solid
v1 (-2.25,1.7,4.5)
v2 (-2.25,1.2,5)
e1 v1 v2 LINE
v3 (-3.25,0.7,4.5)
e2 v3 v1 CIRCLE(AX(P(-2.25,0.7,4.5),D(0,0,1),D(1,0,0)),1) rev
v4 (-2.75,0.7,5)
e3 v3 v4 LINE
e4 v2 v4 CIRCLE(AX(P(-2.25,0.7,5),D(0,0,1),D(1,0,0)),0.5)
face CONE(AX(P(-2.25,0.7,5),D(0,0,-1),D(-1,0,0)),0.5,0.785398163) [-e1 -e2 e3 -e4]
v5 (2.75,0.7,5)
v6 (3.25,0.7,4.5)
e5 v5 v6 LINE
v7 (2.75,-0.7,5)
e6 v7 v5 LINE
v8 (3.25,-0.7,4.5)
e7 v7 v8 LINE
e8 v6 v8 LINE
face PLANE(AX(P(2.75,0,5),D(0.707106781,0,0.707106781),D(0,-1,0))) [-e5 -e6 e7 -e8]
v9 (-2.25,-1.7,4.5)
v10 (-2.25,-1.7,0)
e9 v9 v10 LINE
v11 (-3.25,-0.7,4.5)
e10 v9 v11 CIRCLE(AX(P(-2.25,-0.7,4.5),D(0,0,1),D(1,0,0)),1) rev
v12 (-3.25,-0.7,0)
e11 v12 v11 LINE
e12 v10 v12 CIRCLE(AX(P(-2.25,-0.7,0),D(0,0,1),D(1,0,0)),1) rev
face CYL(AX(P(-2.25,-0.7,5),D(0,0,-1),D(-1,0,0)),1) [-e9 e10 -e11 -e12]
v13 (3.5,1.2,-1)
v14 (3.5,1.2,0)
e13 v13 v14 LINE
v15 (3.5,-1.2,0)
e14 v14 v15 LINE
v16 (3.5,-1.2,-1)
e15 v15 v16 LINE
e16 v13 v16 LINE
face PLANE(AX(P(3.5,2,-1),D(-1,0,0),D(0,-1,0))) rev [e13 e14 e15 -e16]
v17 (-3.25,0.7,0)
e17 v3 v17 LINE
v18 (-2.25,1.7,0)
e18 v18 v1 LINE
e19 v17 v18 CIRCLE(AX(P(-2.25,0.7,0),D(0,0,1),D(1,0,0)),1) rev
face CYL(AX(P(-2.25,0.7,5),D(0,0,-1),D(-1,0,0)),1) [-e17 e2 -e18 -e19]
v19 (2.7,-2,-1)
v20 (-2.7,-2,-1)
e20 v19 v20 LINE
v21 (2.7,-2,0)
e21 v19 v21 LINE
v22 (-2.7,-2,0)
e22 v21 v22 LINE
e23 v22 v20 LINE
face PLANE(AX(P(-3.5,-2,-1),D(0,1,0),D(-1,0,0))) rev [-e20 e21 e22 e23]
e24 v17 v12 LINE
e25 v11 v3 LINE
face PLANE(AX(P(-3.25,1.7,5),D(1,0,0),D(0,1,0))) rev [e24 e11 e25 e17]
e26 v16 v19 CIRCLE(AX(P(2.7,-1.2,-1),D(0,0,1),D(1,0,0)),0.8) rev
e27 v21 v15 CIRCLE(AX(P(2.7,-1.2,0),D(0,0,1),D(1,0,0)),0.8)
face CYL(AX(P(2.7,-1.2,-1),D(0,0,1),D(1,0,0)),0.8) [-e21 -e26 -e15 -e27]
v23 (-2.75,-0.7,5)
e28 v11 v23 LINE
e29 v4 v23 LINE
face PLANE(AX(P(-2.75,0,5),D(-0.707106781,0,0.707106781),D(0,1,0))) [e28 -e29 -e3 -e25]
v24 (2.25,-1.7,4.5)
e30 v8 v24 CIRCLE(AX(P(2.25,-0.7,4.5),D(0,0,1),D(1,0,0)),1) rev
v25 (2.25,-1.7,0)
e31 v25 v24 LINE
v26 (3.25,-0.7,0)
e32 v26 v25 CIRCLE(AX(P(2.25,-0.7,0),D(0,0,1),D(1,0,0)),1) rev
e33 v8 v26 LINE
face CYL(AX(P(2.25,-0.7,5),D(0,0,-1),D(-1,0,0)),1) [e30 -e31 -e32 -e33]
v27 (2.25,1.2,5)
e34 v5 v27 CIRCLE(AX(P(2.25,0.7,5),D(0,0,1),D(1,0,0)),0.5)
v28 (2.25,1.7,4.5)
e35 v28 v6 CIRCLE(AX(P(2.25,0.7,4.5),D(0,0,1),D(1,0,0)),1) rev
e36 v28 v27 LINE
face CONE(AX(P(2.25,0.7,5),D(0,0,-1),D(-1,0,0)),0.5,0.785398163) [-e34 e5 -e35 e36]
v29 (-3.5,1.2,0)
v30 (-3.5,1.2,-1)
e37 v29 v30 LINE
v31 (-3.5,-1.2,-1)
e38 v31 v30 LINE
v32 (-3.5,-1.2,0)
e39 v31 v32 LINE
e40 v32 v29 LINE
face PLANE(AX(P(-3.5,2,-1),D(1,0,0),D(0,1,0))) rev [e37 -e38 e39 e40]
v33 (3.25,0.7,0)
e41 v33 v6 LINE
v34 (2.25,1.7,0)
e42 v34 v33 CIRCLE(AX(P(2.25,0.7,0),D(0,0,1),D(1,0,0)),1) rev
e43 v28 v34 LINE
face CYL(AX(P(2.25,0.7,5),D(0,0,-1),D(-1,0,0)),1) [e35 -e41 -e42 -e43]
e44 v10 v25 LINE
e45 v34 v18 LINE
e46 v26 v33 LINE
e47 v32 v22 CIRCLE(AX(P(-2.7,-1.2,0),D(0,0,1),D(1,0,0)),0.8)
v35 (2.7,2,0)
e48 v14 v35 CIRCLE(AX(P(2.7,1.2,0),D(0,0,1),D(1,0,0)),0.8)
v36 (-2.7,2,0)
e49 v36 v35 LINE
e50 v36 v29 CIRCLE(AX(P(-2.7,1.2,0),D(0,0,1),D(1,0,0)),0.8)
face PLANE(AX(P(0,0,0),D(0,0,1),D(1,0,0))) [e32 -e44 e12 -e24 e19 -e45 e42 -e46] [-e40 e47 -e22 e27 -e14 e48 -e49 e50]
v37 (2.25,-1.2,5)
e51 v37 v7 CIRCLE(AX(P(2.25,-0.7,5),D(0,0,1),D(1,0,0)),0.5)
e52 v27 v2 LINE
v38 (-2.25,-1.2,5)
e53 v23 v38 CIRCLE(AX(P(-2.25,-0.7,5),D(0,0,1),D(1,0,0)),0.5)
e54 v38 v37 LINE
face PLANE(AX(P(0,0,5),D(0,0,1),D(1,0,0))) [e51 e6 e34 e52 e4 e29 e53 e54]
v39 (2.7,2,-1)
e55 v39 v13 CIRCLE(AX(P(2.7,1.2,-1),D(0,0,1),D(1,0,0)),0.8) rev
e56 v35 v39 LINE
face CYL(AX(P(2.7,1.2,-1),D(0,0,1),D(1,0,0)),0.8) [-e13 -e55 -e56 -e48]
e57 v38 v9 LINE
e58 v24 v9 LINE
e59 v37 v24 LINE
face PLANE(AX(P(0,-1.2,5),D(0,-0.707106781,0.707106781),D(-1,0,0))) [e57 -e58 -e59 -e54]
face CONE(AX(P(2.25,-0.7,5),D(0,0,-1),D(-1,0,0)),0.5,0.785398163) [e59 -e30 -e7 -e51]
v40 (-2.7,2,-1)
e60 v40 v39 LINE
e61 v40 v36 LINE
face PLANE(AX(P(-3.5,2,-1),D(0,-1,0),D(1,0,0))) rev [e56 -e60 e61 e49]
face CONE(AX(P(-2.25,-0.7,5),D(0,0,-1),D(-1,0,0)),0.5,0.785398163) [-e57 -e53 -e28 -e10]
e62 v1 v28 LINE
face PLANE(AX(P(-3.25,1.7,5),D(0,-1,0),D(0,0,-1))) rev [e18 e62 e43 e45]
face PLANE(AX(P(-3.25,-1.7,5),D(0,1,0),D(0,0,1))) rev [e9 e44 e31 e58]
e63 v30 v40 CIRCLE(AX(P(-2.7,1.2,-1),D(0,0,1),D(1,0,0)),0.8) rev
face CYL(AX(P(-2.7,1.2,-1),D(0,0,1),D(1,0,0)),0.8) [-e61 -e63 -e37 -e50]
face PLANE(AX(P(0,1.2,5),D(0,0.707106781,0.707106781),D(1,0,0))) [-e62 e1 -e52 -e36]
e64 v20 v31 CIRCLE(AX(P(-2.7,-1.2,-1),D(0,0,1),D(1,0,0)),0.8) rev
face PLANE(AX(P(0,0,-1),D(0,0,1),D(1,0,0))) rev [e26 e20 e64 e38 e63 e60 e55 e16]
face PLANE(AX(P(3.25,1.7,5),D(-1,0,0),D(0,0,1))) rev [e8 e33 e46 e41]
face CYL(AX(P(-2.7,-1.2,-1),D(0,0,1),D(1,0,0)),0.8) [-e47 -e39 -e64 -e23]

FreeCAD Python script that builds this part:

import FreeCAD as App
import Part
import Sketcher

V = App.Vector


def edges_at(feature, points):
    """Names of the edges that pass closest to the given points."""
    edges = feature.Shape.Edges
    near = lambda p: min(range(len(edges)), key=lambda i: edges[i].distToShape(Part.Vertex(*p))[0])
    return sorted({f"Edge{near(p) + 1}" for p in points})

doc = App.newDocument("Part")
body = doc.addObject("PartDesign::Body", "Body")

# Sketch on XY plane
sketch1 = body.newObject("Sketcher::SketchObject", "Sketch")
sketch1.AttachmentSupport = (doc.getObject("XY_Plane"), [""])
sketch1.MapMode = "FlatFace"
sketch1.addGeometry([
    Part.LineSegment(V(-3.25, 1.7, 0), V(-3.25, -1.7, 0)),
    Part.LineSegment(V(-3.25, -1.7, 0), V(3.25, -1.7, 0)),
    Part.LineSegment(V(3.25, -1.7, 0), V(3.25, 1.7, 0)),
    Part.LineSegment(V(3.25, 1.7, 0), V(-3.25, 1.7, 0)),
], False)
sketch1.addConstraint([
    Sketcher.Constraint("Coincident", 0, 2, 1, 1),
    Sketcher.Constraint("Coincident", 1, 2, 2, 1),
    Sketcher.Constraint("Coincident", 2, 2, 3, 1),
    Sketcher.Constraint("Coincident", 3, 2, 0, 1),
    Sketcher.Constraint("Vertical", 0),
    Sketcher.Constraint("Horizontal", 1),
    Sketcher.Constraint("Vertical", 2),
    Sketcher.Constraint("Horizontal", 3),
    Sketcher.Constraint("Symmetric", 0, 2, 2, 2, -1, 1),
    Sketcher.Constraint("DistanceX", 1, 1, 1, 2, 6.5),
    Sketcher.Constraint("DistanceY", 0, 2, 0, 1, 3.4),
])
pad1 = body.newObject("PartDesign::Pad", "Pad")
pad1.Profile = sketch1
pad1.Length = 5
doc.recompute()

fillet = body.newObject("PartDesign::Fillet", "Fillet")
fillet.Base = (pad1, edges_at(pad1, [
    (3.25, -1.7, 2.5),
    (-3.25, -1.7, 2.5),
    (-3.25, 1.7, 2.5),
    (3.25, 1.7, 2.5),
]))
fillet.Radius = 1
doc.recompute()

chamfer = body.newObject("PartDesign::Chamfer", "Chamfer")
chamfer.Base = (fillet, edges_at(fillet, [
    (-3.25, 0, 5),
    (0, 1.7, 5),
    (3.25, 0, 5),
    (0, -1.7, 5),
    (-2.957, -1.407, 5),
    (2.957, -1.407, 5),
    (2.957, 1.407, 5),
    (-2.957, 1.407, 5),
]))
chamfer.Size = 0.5

# Sketch on XY plane
sketch2 = body.newObject("Sketcher::SketchObject", "Sketch001")
sketch2.AttachmentSupport = (doc.getObject("XY_Plane"), [""])
sketch2.MapMode = "FlatFace"
sketch2.addGeometry([
    Part.LineSegment(V(3.5, 2, 0), V(3.5, -2, 0)),
    Part.LineSegment(V(3.5, -2, 0), V(-3.5, -2, 0)),
    Part.LineSegment(V(-3.5, -2, 0), V(-3.5, 2, 0)),
    Part.LineSegment(V(-3.5, 2, 0), V(3.5, 2, 0)),
], False)
sketch2.addConstraint([
    Sketcher.Constraint("Coincident", 0, 2, 1, 1),
    Sketcher.Constraint("Coincident", 1, 2, 2, 1),
    Sketcher.Constraint("Coincident", 2, 2, 3, 1),
    Sketcher.Constraint("Coincident", 3, 2, 0, 1),
    Sketcher.Constraint("Vertical", 0),
    Sketcher.Constraint("Horizontal", 1),
    Sketcher.Constraint("Vertical", 2),
    Sketcher.Constraint("Horizontal", 3),
    Sketcher.Constraint("Symmetric", 0, 2, 2, 2, -1, 1),
    Sketcher.Constraint("DistanceX", 1, 2, 1, 1, 7.0),
    Sketcher.Constraint("DistanceY", 0, 2, 0, 1, 4.0),
])
pad2 = body.newObject("PartDesign::Pad", "Pad001")
pad2.Profile = sketch2
pad2.Length = 1
pad2.Reversed = True
doc.recompute()

fillet2 = body.newObject("PartDesign::Fillet", "Fillet001")
fillet2.Base = (pad2, edges_at(pad2, [
    (3.5, 2, -0.5),
    (3.5, -2, -0.5),
    (-3.5, -2, -0.5),
    (-3.5, 2, -0.5),
]))
fillet2.Radius = 0.8

doc.recompute()
